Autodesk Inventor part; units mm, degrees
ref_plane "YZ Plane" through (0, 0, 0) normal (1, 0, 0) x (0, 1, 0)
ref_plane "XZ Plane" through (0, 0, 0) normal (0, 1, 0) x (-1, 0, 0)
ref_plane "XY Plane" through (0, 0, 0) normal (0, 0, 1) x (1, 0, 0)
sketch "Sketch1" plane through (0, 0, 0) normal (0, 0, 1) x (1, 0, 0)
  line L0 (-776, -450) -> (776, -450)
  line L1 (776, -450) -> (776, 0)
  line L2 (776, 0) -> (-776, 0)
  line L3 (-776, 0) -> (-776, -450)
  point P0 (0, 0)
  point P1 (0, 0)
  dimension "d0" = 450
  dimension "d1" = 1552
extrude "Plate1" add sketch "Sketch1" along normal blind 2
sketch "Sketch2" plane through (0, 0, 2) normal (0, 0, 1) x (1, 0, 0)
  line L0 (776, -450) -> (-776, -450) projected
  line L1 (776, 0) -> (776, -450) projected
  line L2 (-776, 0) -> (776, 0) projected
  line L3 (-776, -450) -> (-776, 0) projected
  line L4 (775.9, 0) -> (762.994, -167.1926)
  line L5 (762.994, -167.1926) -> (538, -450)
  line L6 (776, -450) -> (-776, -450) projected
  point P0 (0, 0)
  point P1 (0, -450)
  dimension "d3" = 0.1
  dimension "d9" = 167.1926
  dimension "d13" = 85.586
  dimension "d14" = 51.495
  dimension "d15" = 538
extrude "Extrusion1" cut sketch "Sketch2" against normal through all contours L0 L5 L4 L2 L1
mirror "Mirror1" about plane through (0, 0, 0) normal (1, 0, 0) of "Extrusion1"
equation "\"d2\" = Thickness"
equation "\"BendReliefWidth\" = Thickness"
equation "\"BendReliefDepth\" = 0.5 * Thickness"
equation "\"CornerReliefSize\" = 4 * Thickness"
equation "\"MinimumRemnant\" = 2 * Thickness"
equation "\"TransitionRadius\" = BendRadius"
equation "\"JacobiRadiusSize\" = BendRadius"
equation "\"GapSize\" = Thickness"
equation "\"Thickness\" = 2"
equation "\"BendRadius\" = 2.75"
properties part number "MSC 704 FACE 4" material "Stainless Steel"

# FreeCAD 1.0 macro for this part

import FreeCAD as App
import Part
import Sketcher
from FreeCAD import Vector


def add_polygon(sketch, points):
    """Adds a closed chain of lines whose ends are joined by coincident constraints."""
    first, n = sketch.GeometryCount, len(points)
    for a, b in zip(points, points[1:] + points[:1]):
        sketch.addGeometry(Part.LineSegment(App.Vector(*a, 0), App.Vector(*b, 0)), False)
    for i in range(n):
        sketch.addConstraint(Sketcher.Constraint("Coincident", first + i, 2, first + (i + 1) % n, 1))

doc = App.newDocument("Part")
body = doc.addObject("PartDesign::Body", "Body")

# Sketch on XY plane
sketch1 = doc.addObject("Sketcher::SketchObject", "Sketch")
body.addObject(sketch1)
sketch1.AttachmentSupport = (doc.XY_Plane, [""])
sketch1.MapMode = "FlatFace"
add_polygon(sketch1, [(-776, 0), (-776, -450), (776, -450), (776, 0)])  # lines 0-3
sketch1.addConstraint(Sketcher.Constraint("Vertical", 0))
sketch1.addConstraint(Sketcher.Constraint("Horizontal", 1))
sketch1.addConstraint(Sketcher.Constraint("Vertical", 2))
sketch1.addConstraint(Sketcher.Constraint("Horizontal", 3))
sketch1.addConstraint(Sketcher.Constraint("Symmetric", 2, 2, 3, 2, -1, 1))
sketch1.addConstraint(Sketcher.Constraint("DistanceX", 1, 1, 1, 2, 1552.0))
sketch1.addConstraint(Sketcher.Constraint("DistanceY", 0, 2, 0, 1, 450.0))
pad1 = doc.addObject("PartDesign::Pad", "Pad")
body.addObject(pad1)
pad1.Profile = sketch1
pad1.Length = 2

# Sketch on XY plane
sketch2 = doc.addObject("Sketcher::SketchObject", "Sketch001")
body.addObject(sketch2)
sketch2.AttachmentSupport = (doc.XY_Plane, [""])
sketch2.MapMode = "FlatFace"
sketch2.AttachmentOffset = App.Placement(Vector(0, 0, 2), App.Rotation())
add_polygon(sketch2, [(538, -450), (776, -450), (776, 0), (775.9, 0), (762.994, -167.1926)])  # lines 0-4
sketch2.addConstraint(Sketcher.Constraint("Horizontal", 0))
sketch2.addConstraint(Sketcher.Constraint("Vertical", 1))
sketch2.addConstraint(Sketcher.Constraint("Horizontal", 2))
sketch2.addConstraint(Sketcher.Constraint("PointOnObject", 1, 2, -1))
sketch2.addConstraint(Sketcher.Constraint("DistanceX", 2, 2, 2, 1, 0.1))
sketch2.addConstraint(Sketcher.Constraint("DistanceX", -1, 1, 4, 2, 538.0))
sketch2.addConstraint(Sketcher.Constraint("DistanceX", 0, 1, 0, 2, 238.0))
sketch2.addConstraint(Sketcher.Constraint("DistanceY", 1, 1, 1, 2, 450.0))
sketch2.addConstraint(Sketcher.Constraint("DistanceY", 3, 2, -1, 1, 167.1926))
sketch2.addConstraint(Sketcher.Constraint("Distance", 3, 167.69))
pocket1 = doc.addObject("PartDesign::Pocket", "Pocket")
body.addObject(pocket1)
pocket1.Profile = sketch2
pocket1.Type = "ThroughAll"
doc.recompute()

mirrored = doc.addObject("PartDesign::Mirrored", "Mirrored")
body.addObject(mirrored)
mirrored.Originals = [pocket1]
mirrored.MirrorPlane = (doc.YZ_Plane, [""])
body.Tip = mirrored

doc.recompute()
